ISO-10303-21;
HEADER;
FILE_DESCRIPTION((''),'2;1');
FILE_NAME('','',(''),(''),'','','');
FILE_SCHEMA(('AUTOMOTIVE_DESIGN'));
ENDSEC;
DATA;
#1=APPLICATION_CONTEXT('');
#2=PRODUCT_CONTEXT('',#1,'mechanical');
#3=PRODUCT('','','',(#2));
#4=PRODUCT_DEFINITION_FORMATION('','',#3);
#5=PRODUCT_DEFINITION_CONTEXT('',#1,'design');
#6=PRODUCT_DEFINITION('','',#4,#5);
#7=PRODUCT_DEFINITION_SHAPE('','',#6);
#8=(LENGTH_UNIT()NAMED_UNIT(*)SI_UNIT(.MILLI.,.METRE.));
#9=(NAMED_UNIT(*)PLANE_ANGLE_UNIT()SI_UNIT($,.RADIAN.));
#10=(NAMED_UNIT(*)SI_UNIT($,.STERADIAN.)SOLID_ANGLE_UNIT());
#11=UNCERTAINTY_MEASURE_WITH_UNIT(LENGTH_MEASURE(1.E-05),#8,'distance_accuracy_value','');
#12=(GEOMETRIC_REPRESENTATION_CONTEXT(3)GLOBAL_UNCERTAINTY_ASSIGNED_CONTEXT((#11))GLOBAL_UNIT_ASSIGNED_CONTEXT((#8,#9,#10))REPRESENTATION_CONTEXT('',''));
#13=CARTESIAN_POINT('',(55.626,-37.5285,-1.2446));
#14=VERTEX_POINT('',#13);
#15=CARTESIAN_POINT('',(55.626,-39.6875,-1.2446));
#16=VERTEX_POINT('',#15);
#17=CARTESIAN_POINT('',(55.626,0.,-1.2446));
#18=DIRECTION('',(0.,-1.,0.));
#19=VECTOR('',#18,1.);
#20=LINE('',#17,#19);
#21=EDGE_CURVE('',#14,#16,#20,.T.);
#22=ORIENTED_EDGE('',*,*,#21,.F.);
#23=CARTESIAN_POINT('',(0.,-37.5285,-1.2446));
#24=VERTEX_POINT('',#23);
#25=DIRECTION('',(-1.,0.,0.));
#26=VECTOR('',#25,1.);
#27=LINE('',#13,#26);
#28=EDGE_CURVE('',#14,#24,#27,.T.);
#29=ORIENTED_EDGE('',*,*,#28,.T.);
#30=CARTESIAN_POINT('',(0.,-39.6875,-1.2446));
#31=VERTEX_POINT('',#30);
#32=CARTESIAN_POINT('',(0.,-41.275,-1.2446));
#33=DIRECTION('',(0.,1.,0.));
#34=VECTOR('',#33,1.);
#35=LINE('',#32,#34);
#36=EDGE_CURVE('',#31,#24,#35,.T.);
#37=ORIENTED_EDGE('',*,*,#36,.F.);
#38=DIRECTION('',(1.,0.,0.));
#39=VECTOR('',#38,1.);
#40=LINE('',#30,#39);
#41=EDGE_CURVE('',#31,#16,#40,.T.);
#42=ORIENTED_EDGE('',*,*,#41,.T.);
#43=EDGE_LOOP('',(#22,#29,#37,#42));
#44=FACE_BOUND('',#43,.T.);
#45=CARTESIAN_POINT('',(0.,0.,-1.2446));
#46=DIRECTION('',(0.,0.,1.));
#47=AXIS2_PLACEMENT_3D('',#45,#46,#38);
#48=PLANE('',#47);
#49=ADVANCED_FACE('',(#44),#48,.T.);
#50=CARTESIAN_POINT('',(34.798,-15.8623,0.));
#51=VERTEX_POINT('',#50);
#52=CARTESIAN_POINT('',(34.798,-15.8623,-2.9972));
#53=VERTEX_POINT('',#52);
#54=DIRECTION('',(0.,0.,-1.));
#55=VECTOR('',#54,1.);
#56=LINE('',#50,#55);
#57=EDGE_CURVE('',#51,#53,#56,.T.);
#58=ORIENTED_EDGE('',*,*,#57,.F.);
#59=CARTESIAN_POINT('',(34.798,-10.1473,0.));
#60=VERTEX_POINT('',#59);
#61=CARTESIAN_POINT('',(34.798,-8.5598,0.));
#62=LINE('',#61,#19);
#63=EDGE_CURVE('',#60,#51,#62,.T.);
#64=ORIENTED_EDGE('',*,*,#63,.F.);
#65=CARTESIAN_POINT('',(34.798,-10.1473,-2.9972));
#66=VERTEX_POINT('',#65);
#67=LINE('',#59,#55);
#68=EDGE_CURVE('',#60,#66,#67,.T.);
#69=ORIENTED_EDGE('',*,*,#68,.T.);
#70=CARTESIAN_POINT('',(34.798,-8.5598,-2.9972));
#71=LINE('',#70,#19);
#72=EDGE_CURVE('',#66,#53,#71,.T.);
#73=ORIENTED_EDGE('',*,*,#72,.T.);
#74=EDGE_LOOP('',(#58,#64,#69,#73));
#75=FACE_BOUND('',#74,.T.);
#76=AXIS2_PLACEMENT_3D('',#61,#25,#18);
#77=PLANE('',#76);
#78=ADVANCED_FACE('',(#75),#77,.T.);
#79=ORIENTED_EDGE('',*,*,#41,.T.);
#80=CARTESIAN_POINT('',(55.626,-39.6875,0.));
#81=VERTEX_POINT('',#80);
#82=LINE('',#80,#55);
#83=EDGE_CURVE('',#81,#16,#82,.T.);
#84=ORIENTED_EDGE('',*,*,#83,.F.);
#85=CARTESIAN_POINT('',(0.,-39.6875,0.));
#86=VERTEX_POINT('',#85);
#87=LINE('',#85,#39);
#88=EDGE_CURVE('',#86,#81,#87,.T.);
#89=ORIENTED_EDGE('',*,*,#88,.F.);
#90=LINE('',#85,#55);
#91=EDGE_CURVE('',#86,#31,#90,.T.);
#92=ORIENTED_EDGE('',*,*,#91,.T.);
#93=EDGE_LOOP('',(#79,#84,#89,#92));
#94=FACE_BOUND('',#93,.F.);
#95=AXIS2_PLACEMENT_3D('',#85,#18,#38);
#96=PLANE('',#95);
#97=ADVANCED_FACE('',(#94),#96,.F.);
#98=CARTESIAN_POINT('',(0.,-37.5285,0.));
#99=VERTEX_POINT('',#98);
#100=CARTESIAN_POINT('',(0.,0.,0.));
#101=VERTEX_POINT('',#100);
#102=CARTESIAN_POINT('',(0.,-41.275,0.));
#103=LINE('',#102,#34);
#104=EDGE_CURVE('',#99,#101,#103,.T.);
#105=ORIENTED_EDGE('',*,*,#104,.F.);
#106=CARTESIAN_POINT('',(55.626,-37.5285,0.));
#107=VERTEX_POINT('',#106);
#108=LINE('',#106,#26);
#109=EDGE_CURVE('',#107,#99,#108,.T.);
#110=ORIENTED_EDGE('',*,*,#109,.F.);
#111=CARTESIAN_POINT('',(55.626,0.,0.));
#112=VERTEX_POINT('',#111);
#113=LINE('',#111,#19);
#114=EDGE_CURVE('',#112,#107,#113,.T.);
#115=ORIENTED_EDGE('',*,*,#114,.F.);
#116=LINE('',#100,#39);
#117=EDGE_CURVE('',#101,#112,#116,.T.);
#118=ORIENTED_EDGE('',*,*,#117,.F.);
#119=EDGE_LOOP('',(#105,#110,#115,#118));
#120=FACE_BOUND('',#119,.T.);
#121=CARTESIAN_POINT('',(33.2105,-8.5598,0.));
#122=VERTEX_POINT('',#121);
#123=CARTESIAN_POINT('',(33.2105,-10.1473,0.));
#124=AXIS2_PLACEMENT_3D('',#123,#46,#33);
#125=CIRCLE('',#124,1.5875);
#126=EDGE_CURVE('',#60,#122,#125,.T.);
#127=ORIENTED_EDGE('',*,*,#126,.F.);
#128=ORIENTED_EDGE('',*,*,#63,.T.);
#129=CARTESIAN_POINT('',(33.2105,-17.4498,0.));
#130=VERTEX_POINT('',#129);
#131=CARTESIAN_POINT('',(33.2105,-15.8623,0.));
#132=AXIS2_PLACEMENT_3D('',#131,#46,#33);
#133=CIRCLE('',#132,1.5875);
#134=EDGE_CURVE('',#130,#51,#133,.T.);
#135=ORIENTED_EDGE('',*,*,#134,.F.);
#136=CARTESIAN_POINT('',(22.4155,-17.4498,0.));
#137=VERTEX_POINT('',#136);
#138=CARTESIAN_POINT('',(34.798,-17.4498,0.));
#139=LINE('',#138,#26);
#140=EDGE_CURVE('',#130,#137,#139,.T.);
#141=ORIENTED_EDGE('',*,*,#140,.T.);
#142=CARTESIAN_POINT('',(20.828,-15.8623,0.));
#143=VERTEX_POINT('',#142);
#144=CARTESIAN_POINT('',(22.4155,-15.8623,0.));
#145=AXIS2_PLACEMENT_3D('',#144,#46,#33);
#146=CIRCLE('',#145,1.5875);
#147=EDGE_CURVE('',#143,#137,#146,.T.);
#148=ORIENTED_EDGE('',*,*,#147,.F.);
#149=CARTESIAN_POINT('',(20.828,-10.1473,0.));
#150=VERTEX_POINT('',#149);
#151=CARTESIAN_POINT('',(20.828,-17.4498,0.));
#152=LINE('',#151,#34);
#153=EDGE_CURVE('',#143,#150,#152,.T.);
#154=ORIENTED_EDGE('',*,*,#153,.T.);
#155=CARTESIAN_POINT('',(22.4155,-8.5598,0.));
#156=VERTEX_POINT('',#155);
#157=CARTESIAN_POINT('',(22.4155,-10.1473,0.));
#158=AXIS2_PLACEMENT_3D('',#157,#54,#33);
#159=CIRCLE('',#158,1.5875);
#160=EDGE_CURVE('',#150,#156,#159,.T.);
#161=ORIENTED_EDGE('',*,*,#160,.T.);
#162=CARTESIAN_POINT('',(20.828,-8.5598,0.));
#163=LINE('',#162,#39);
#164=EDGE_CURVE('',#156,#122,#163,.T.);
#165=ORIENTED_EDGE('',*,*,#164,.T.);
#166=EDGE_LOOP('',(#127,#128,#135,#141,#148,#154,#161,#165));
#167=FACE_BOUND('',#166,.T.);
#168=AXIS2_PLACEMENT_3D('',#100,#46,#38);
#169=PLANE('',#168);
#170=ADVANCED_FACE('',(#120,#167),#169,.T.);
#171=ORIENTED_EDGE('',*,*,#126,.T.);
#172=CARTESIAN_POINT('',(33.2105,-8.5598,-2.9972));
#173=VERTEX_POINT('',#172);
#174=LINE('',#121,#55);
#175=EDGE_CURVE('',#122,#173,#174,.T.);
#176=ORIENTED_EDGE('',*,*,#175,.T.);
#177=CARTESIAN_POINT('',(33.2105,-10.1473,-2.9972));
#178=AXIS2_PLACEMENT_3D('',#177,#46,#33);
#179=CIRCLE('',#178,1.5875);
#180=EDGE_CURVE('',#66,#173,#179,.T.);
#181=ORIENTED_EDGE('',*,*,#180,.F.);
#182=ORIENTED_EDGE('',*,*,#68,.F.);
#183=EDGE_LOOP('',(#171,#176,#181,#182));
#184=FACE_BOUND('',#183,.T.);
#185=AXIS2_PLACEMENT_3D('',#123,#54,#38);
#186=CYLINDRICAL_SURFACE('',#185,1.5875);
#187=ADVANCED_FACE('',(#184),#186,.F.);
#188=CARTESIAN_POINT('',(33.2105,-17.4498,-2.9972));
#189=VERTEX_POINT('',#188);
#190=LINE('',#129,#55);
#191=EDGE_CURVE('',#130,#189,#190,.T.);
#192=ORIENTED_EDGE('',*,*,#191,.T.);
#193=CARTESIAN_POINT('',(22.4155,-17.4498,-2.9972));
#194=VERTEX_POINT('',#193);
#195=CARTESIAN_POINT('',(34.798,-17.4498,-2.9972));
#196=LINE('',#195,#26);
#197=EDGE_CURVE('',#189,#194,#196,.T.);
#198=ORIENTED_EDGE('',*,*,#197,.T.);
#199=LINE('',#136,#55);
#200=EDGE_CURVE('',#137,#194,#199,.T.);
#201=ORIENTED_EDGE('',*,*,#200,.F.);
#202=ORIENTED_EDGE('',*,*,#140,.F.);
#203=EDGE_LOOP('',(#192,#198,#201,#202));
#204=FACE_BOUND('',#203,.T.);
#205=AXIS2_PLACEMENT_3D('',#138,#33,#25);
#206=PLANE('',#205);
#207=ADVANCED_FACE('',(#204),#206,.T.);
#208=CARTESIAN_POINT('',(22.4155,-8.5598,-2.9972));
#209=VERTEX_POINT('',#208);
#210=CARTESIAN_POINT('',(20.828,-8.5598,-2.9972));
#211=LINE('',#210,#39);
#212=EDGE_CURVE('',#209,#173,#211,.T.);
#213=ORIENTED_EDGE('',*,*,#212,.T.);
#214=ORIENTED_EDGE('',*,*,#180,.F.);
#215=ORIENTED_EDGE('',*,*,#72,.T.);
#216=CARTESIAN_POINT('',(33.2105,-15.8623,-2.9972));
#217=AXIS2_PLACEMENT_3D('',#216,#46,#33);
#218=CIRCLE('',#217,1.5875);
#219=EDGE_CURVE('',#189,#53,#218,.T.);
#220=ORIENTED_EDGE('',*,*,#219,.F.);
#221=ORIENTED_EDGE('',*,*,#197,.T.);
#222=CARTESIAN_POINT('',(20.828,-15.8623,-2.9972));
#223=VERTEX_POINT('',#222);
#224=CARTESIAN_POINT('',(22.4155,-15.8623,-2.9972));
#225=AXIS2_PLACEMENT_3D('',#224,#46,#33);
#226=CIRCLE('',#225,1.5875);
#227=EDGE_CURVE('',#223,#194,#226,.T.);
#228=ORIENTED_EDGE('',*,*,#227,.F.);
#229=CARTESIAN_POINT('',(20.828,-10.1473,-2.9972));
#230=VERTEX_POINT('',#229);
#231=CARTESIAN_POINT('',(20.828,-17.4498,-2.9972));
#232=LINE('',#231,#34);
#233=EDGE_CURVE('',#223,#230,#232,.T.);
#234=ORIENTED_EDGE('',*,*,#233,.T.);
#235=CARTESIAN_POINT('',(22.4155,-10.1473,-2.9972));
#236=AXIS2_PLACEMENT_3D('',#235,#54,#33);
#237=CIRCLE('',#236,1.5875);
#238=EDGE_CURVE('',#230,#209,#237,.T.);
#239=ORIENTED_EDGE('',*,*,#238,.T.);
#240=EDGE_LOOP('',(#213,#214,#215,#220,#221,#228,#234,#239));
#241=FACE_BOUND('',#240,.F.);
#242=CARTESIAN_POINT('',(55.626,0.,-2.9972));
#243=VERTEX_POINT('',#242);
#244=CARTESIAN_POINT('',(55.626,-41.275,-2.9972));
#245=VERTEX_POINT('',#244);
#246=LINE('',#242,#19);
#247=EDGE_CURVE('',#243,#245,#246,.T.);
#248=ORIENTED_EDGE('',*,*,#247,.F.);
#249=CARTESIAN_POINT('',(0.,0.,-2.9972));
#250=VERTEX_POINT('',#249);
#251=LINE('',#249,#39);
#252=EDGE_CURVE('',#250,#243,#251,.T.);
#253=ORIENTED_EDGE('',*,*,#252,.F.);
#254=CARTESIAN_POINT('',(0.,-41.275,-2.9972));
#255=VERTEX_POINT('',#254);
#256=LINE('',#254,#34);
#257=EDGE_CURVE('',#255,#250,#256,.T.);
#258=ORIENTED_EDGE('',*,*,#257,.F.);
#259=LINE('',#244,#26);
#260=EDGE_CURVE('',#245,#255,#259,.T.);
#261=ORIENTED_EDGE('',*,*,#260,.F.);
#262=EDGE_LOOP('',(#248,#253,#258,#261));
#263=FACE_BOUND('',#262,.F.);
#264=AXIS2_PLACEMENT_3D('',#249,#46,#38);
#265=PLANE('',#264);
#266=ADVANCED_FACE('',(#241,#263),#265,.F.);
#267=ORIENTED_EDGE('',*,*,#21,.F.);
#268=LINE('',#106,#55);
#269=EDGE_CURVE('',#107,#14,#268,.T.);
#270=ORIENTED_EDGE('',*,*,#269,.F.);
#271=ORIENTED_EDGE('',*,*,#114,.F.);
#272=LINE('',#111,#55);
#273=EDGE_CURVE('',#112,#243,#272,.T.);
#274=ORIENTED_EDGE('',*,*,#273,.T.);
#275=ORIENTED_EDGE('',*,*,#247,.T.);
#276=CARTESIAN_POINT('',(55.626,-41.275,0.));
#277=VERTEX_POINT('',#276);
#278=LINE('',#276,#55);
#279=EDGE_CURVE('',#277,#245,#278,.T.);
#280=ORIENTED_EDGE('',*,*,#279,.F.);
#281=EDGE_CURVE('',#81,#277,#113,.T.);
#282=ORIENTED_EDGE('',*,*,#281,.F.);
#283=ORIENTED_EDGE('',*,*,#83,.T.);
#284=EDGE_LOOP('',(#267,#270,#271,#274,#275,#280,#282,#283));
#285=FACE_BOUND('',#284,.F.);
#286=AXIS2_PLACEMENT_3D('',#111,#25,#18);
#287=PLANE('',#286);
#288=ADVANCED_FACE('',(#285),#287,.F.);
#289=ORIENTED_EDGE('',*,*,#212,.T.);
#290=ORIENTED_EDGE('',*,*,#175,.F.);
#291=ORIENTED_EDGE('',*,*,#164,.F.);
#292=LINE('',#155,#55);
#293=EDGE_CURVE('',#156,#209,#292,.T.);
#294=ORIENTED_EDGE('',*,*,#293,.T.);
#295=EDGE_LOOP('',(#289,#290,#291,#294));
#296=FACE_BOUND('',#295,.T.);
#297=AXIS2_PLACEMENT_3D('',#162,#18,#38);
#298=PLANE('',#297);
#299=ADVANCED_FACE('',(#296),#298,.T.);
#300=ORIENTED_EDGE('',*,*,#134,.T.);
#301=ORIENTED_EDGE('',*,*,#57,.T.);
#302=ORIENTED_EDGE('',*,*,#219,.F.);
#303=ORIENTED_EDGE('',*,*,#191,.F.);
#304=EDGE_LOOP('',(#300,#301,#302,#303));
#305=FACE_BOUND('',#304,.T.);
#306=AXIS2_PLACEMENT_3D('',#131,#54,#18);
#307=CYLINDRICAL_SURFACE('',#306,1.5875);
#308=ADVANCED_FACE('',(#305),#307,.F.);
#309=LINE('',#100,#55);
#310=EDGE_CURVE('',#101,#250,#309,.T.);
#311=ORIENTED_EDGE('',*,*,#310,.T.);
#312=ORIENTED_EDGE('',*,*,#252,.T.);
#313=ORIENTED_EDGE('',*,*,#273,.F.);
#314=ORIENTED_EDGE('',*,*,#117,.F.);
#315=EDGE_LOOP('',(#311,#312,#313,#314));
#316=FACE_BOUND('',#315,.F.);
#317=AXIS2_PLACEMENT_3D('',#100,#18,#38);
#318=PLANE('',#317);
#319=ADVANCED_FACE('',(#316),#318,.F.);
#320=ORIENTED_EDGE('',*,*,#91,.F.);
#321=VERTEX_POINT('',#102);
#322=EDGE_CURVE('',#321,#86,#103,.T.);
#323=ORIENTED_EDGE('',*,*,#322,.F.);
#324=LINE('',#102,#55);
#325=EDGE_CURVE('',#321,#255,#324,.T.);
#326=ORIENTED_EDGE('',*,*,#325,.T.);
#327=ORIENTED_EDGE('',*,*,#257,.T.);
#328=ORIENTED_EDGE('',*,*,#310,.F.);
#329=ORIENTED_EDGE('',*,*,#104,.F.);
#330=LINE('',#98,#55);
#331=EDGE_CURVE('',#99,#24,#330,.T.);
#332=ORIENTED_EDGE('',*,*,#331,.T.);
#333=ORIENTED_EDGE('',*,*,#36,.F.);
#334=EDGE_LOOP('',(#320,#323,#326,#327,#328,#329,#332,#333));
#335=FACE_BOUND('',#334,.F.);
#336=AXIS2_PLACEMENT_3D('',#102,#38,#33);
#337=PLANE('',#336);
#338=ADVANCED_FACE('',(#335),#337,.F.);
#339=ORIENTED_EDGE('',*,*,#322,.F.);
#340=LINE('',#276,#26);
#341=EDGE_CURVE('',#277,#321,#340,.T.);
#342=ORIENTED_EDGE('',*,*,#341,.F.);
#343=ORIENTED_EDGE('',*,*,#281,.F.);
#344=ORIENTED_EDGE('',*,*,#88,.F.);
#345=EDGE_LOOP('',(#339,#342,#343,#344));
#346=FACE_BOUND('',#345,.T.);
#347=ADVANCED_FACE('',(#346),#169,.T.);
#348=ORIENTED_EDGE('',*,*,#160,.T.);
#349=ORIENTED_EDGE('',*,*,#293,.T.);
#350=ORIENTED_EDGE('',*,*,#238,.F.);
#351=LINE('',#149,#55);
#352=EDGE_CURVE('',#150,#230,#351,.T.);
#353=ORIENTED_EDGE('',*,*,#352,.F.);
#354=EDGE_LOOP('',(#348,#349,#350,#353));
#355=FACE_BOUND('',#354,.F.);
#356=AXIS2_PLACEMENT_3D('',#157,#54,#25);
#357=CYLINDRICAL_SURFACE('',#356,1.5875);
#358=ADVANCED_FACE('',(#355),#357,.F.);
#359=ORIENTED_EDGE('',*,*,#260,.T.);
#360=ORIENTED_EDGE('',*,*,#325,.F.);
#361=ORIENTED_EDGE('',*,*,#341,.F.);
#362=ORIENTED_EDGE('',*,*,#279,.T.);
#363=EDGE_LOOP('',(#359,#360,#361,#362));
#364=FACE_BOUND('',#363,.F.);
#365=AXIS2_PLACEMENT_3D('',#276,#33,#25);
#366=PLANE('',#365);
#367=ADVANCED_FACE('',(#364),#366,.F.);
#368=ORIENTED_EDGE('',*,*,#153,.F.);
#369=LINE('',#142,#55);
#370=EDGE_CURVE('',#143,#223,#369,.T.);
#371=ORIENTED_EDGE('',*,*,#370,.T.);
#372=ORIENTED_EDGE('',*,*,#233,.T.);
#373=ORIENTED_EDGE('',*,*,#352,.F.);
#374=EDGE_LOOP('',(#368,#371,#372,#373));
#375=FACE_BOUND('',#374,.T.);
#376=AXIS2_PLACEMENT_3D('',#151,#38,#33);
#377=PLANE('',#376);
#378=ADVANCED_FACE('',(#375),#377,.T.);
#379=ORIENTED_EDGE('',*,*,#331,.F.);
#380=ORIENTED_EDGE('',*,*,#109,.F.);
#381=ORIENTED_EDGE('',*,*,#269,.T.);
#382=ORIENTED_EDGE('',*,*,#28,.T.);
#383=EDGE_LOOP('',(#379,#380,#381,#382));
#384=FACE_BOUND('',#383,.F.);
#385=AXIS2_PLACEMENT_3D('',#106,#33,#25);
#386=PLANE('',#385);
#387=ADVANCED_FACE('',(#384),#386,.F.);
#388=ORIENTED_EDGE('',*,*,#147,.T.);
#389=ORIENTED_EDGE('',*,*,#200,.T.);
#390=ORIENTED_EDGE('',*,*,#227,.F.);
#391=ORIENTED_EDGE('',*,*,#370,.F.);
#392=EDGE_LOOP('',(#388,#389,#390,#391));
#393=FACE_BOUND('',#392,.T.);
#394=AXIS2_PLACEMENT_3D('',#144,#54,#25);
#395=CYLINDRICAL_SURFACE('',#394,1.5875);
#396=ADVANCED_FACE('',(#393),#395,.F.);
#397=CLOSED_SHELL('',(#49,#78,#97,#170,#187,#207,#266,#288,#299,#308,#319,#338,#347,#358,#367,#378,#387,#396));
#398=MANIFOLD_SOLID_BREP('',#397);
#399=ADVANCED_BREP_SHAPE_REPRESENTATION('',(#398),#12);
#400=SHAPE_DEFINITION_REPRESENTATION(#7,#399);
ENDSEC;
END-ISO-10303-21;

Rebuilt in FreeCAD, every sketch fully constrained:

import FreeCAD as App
import Part
import Sketcher
Q = App.Units.Quantity


def edges_at(feature, points):
    """Names of the edges that pass closest to the given points."""
    edges = feature.Shape.Edges
    near = lambda p: min(range(len(edges)), key=lambda i: edges[i].distToShape(Part.Vertex(*p))[0])
    return sorted({f"Edge{near(p) + 1}" for p in points})


def add_polygon(sketch, points):
    """Adds a closed chain of lines whose ends are joined by coincident constraints."""
    first, n = sketch.GeometryCount, len(points)
    for a, b in zip(points, points[1:] + points[:1]):
        sketch.addGeometry(Part.LineSegment(App.Vector(*a, 0), App.Vector(*b, 0)), False)
    for i in range(n):
        sketch.addConstraint(Sketcher.Constraint("Coincident", first + i, 2, first + (i + 1) % n, 1))

doc = App.newDocument("Part")
body = doc.addObject("PartDesign::Body", "Body")

sketch1 = doc.addObject("Sketcher::SketchObject", "Sketch")
body.addObject(sketch1)
sketch1.AttachmentSupport = (doc.XY_Plane, [""])
sketch1.MapMode = "FlatFace"
add_polygon(sketch1, [(55.626, 0), (0, 0), (0, -41.275), (55.626, -41.275)])
sketch1.addConstraint(Sketcher.Constraint("Horizontal", 0))
sketch1.addConstraint(Sketcher.Constraint("Vertical", 1))
sketch1.addConstraint(Sketcher.Constraint("Horizontal", 2))
sketch1.addConstraint(Sketcher.Constraint("Vertical", 3))
sketch1.addConstraint(Sketcher.Constraint("Coincident", 0, 2, -1, 1))
sketch1.addConstraint(Sketcher.Constraint("DistanceX", 0, 2, 0, 1, Q("2.19 in")))
sketch1.addConstraint(Sketcher.Constraint("DistanceY", 1, 2, 1, 1, Q("1.625 in")))
pad1 = doc.addObject("PartDesign::Pad", "Pad")
body.addObject(pad1)
pad1.Profile = sketch1
pad1.Length = Q("0.118 in")
pad1.Reversed = True

sketch2 = doc.addObject("Sketcher::SketchObject", "Sketch001")
body.addObject(sketch2)
sketch2.AttachmentSupport = (doc.XY_Plane, [""])
sketch2.MapMode = "FlatFace"
add_polygon(sketch2, [(34.798, -8.5598), (20.828, -8.5598), (20.828, -17.4498), (34.798, -17.4498)])
sketch2.addConstraint(Sketcher.Constraint("Horizontal", 0))
sketch2.addConstraint(Sketcher.Constraint("Vertical", 1))
sketch2.addConstraint(Sketcher.Constraint("Horizontal", 2))
sketch2.addConstraint(Sketcher.Constraint("Vertical", 3))
sketch2.addConstraint(Sketcher.Constraint("DistanceX", 0, 2, 0, 1, Q("0.55 in")))
sketch2.addConstraint(Sketcher.Constraint("DistanceY", 1, 2, 1, 1, Q("0.35 in")))
sketch2.addConstraint(Sketcher.Constraint("DistanceX", -1, 1, 0, 2, Q("0.82 in")))
sketch2.addConstraint(Sketcher.Constraint("DistanceY", 0, 2, -1, 1, Q("0.337 in")))
pocket1 = doc.addObject("PartDesign::Pocket", "Pocket")
body.addObject(pocket1)
pocket1.Profile = sketch2
pocket1.Length = Q("0.118 in")
doc.recompute()

fillet = doc.addObject("PartDesign::Fillet", "Fillet")
body.addObject(fillet)
fillet.Base = (pocket1, edges_at(pocket1, [
    (20.828, -17.45, -1.499),
    (20.828, -8.56, -1.499),
    (34.798, -8.56, -1.499),
    (34.798, -17.45, -1.499),
]))
fillet.Radius = Q("0.0625 in")

sketch3 = doc.addObject("Sketcher::SketchObject", "Sketch002")
body.addObject(sketch3)
sketch3.AttachmentSupport = (doc.XY_Plane, [""])
sketch3.MapMode = "FlatFace"
add_polygon(sketch3, [(0, -37.5285), (0, -39.6875), (55.626, -39.6875), (55.626, -37.5285)])
sketch3.addConstraint(Sketcher.Constraint("Vertical", 0))
sketch3.addConstraint(Sketcher.Constraint("Horizontal", 1))
sketch3.addConstraint(Sketcher.Constraint("Vertical", 2))
sketch3.addConstraint(Sketcher.Constraint("Horizontal", 3))
sketch3.addConstraint(Sketcher.Constraint("PointOnObject", 0, 2, -2))
sketch3.addConstraint(Sketcher.Constraint("DistanceY", 0, 2, 0, 1, Q("0.085 in")))
sketch3.addConstraint(Sketcher.Constraint("DistanceX", 1, 1, 1, 2, Q("2.19 in")))
sketch3.addConstraint(Sketcher.Constraint("DistanceY", 0, 2, -1, 1, Q("1.5625 in")))
pocket2 = doc.addObject("PartDesign::Pocket", "Pocket001")
body.addObject(pocket2)
pocket2.Profile = sketch3
pocket2.Length = Q("0.049 in")

doc.recompute()
